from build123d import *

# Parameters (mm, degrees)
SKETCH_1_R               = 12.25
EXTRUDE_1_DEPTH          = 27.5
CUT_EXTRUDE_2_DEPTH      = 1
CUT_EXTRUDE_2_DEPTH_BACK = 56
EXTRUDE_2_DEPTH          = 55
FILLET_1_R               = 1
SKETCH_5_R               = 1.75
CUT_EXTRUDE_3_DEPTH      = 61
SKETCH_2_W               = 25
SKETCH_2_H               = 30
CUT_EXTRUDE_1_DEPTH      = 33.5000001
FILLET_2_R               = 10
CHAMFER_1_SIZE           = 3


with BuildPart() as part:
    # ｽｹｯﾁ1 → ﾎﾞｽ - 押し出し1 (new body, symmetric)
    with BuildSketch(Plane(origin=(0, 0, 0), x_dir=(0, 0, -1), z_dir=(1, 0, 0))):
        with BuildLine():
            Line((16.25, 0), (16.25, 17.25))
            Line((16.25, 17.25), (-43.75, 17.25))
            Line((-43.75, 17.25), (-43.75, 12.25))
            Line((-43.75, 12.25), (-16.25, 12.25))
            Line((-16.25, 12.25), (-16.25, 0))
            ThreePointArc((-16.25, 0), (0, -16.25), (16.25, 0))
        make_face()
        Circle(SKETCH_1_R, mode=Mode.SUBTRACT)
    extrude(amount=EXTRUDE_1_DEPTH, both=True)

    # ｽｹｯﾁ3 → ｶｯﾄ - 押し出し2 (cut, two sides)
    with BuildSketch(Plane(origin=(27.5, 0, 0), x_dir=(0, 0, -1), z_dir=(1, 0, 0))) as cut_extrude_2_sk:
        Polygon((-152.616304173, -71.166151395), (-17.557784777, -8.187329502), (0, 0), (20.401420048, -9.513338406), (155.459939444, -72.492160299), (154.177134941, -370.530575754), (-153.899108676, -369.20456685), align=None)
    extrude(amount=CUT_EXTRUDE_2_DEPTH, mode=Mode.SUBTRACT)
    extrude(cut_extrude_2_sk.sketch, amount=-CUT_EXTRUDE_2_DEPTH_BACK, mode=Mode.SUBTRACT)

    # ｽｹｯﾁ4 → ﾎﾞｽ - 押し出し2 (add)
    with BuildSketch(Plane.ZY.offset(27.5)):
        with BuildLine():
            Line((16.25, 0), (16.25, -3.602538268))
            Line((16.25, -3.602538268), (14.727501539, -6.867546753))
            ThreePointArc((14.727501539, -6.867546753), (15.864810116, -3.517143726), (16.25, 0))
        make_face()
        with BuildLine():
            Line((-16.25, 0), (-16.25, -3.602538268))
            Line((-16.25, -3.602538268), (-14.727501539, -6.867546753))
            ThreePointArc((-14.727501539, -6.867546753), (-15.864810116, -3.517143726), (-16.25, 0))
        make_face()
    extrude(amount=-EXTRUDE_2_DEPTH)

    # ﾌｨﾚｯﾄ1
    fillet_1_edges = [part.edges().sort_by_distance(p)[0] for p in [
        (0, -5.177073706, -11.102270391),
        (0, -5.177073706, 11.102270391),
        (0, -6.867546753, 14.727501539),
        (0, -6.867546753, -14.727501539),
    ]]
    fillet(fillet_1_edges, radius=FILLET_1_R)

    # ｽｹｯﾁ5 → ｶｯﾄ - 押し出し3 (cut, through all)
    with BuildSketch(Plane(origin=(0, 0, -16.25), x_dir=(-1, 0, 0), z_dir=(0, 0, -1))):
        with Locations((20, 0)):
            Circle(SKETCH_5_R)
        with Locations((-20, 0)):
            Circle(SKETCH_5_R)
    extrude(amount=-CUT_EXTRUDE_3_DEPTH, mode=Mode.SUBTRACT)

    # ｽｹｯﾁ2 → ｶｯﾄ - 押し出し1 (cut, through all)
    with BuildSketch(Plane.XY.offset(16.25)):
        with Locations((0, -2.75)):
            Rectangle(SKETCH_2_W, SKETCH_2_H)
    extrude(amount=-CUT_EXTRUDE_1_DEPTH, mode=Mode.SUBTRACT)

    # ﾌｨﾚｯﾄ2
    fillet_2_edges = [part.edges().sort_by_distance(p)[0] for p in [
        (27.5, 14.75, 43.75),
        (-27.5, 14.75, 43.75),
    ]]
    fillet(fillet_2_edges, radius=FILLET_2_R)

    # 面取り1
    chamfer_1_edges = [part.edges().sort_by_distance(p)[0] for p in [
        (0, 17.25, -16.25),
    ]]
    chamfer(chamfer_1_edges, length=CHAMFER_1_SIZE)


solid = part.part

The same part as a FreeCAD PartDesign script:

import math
import FreeCAD as App
import Part
import Sketcher
from FreeCAD import Vector
Q = App.Units.Quantity


def edges_at(feature, points):
    """Names of the edges that pass closest to the given points."""
    edges = feature.Shape.Edges
    near = lambda p: min(range(len(edges)), key=lambda i: edges[i].distToShape(Part.Vertex(*p))[0])
    return sorted({f"Edge{near(p) + 1}" for p in points})


def add_polygon(sketch, points):
    """Adds a closed chain of lines whose ends are joined by coincident constraints."""
    first, n = sketch.GeometryCount, len(points)
    for a, b in zip(points, points[1:] + points[:1]):
        sketch.addGeometry(Part.LineSegment(App.Vector(*a, 0), App.Vector(*b, 0)), False)
    for i in range(n):
        sketch.addConstraint(Sketcher.Constraint("Coincident", first + i, 2, first + (i + 1) % n, 1))

doc = App.newDocument("Part")
params = doc.addObject("Spreadsheet::Sheet", "Params")
for row, (alias, value) in enumerate([
    ("sketch1_diameter", "24.5 mm"),
    ("sketch1_width", "5 mm"),
    ("sketch1_height", "60 mm"),
    ("sketch1_radius", "16.25 mm"),
    ("sketch1_width2", "17.25 mm"),
    ("pad1_length", "55 mm"),
    ("sketch3_radius", "16.25 mm"),
    ("pad2_length", "55 mm"),
    ("fillet_radius", "1 mm"),
    ("sketch4_diameter", "3.5 mm"),
    ("sketch5_width", "25 mm"),
    ("sketch5_height", "30 mm"),
    ("fillet2_radius", "10 mm"),
    ("chamfer_size", "3 mm"),
], start=1):
    params.set(f"A{row}", alias)
    params.set(f"B{row}", "=" + value)
    params.setAlias(f"B{row}", alias)

body = doc.addObject("PartDesign::Body", "Body")

sketch1 = body.newObject("Sketcher::SketchObject", "Sketch")
sketch1.AttachmentSupport = (doc.getObject("YZ_Plane"), [""])
sketch1.MapMode = "FlatFace"
sketch1.addGeometry([
    Part.LineSegment(Vector(0, -16.25, 0), Vector(17.25, -16.25, 0)),
    Part.LineSegment(Vector(17.25, -16.25, 0), Vector(17.25, 43.75, 0)),
    Part.LineSegment(Vector(17.25, 43.75, 0), Vector(12.25, 43.75, 0)),
    Part.LineSegment(Vector(12.25, 43.75, 0), Vector(12.25, 16.25, 0)),
    Part.LineSegment(Vector(12.25, 16.25, 0), Vector(0, 16.25, 0)),
    Part.ArcOfCircle(Part.Circle(Vector(0, 0, 0), Vector(0, 0, 1), 16.25), math.radians(90), math.radians(270)),
    Part.Circle(Vector(0, 0, 0), Vector(0, 0, 1), 12.25),
], False)
sketch1.addConstraint([
    Sketcher.Constraint("Coincident", 0, 2, 1, 1),
    Sketcher.Constraint("Coincident", 1, 2, 2, 1),
    Sketcher.Constraint("Coincident", 2, 2, 3, 1),
    Sketcher.Constraint("Coincident", 3, 2, 4, 1),
    Sketcher.Constraint("Tangent", 4, 2, 5, 1),
    Sketcher.Constraint("Tangent", 5, 2, 0, 1),
    Sketcher.Constraint("Horizontal", 0),
    Sketcher.Constraint("Vertical", 1),
    Sketcher.Constraint("Horizontal", 2),
    Sketcher.Constraint("Vertical", 3),
    Sketcher.Constraint("Horizontal", 4),
    Sketcher.Constraint("Coincident", 5, 3, -1, 1),
    Sketcher.Constraint("Coincident", 6, 3, -1, 1),
    Sketcher.Constraint("Diameter", 6, Q("24.5 mm")),
    Sketcher.Constraint("DistanceX", 2, 2, 2, 1, Q("5 mm")),
    Sketcher.Constraint("DistanceY", 1, 1, 1, 2, Q("60 mm")),
    Sketcher.Constraint("Radius", 5, Q("16.25 mm")),
    Sketcher.Constraint("DistanceX", 0, 1, 0, 2, Q("17.25 mm")),
])
sketch1.setExpression("Constraints[13]", "Params.sketch1_diameter")
sketch1.setExpression("Constraints[14]", "Params.sketch1_width")
sketch1.setExpression("Constraints[15]", "Params.sketch1_height")
sketch1.setExpression("Constraints[16]", "Params.sketch1_radius")
sketch1.setExpression("Constraints[17]", "Params.sketch1_width2")
pad1 = body.newObject("PartDesign::Pad", "Pad")
pad1.Profile = sketch1
pad1.setExpression("Length", "Params.pad1_length")
pad1.Midplane = True

sketch2 = body.newObject("Sketcher::SketchObject", "Sketch001")
sketch2.AttachmentSupport = (doc.getObject("YZ_Plane"), [""])
sketch2.MapMode = "FlatFace"
sketch2.AttachmentOffset = App.Placement(Vector(0, 0, 27.5), App.Rotation())
add_polygon(sketch2, [(-8.18733, 17.557785), (-71.166151, 152.616304), (-369.204567, 153.899109), (-370.530576, -154.177135), (-72.49216, -155.459939), (-9.513338, -20.40142), (0, 0)])
sketch2.addConstraint([
    Sketcher.Constraint("Coincident", 5, 2, -1, 1),
    Sketcher.Constraint("Perpendicular", 1, 2),
    Sketcher.Constraint("Perpendicular", 2, 3),
    Sketcher.Constraint("Parallel", 4, 5),
    Sketcher.Constraint("Parallel", 0, 6),
    Sketcher.Constraint("Equal", 1, 3),
    Sketcher.Constraint("Equal", 0, 4),
    Sketcher.Constraint("Angle", 0, Q("115 deg")),
    Sketcher.Constraint("Angle", 4, Q("65 deg")),
    Sketcher.Constraint("Distance", 0, Q("149.020588 mm")),
    Sketcher.Constraint("DistanceX", 0, 2, -1, 1, Q("71.166151 mm")),
    Sketcher.Constraint("DistanceY", -1, 1, 1, 2, Q("153.899109 mm")),
    Sketcher.Constraint("DistanceX", 3, 2, -1, 1, Q("72.49216 mm")),
])
pocket1 = body.newObject("PartDesign::Pocket", "Pocket")
pocket1.Profile = sketch2
pocket1.Type = "ThroughAll"
pocket1.Midplane = True

sketch3 = body.newObject("Sketcher::SketchObject", "Sketch002")
sketch3.AttachmentSupport = (doc.getObject("YZ_Plane"), [""])
sketch3.MapMode = "FlatFace"
sketch3.AttachmentOffset = App.Placement(Vector(0, 0, -27.5), App.Rotation())
sketch3.addGeometry([
    Part.LineSegment(Vector(-3.602538, 16.25, 0), Vector(0, 16.25, 0)),
    Part.ArcOfCircle(Part.Circle(Vector(0, 0, 0), Vector(0, 0, 1), 16.25), math.radians(90), math.radians(115)),
    Part.LineSegment(Vector(-6.867547, 14.727502, 0), Vector(-3.602538, 16.25, 0)),
    Part.LineSegment(Vector(0, -16.25, 0), Vector(-3.602538, -16.25, 0)),
    Part.LineSegment(Vector(-3.602538, -16.25, 0), Vector(-6.867547, -14.727502, 0)),
    Part.ArcOfCircle(Part.Circle(Vector(0, 0, 0), Vector(0, 0, 1), 16.25), math.radians(-115), math.radians(-90)),
], False)
sketch3.addConstraint([
    Sketcher.Constraint("Tangent", 0, 2, 1, 1),
    Sketcher.Constraint("Tangent", 1, 2, 2, 1),
    Sketcher.Constraint("Coincident", 2, 2, 0, 1),
    Sketcher.Constraint("Coincident", 3, 2, 4, 1),
    Sketcher.Constraint("Tangent", 4, 2, 5, 1),
    Sketcher.Constraint("Tangent", 5, 2, 3, 1),
    Sketcher.Constraint("Horizontal", 0),
    Sketcher.Constraint("Horizontal", 3),
    Sketcher.Constraint("Coincident", 1, 3, -1, 1),
    Sketcher.Constraint("Coincident", 5, 3, -1, 1),
    Sketcher.Constraint("Equal", 1, 5),
    Sketcher.Constraint("Vertical", 2, 2, 3, 2),
    Sketcher.Constraint("Angle", 2, Q("25 deg")),
    Sketcher.Constraint("Radius", 1, Q("16.25 mm")),
])
sketch3.setExpression("Constraints[13]", "Params.sketch3_radius")
pad2 = body.newObject("PartDesign::Pad", "Pad001")
pad2.Profile = sketch3
pad2.setExpression("Length", "Params.pad2_length")
doc.recompute()

fillet = body.newObject("PartDesign::Fillet", "Fillet")
fillet.Base = (pad2, edges_at(pad2, [
    (0, -5.177, -11.102),
    (0, -5.177, 11.102),
    (0, -6.868, 14.728),
    (0, -6.868, -14.728),
]))
fillet.setExpression("Radius", "Params.fillet_radius")

sketch4 = body.newObject("Sketcher::SketchObject", "Sketch003")
sketch4.AttachmentSupport = (doc.getObject("XY_Plane"), [""])
sketch4.MapMode = "FlatFace"
sketch4.AttachmentOffset = App.Placement(Vector(0, 0, -16.25), App.Rotation())
sketch4.addGeometry([
    Part.Circle(Vector(-20, 0, 0), Vector(0, 0, 1), 1.75),
    Part.Circle(Vector(20, 0, 0), Vector(0, 0, 1), 1.75),
], False)
sketch4.addConstraint([
    Sketcher.Constraint("Equal", 0, 1),
    Sketcher.Constraint("Symmetric", 0, 3, 1, 3, -1, 1),
    Sketcher.Constraint("PointOnObject", 0, 3, -1),
    Sketcher.Constraint("Diameter", 0, Q("3.5 mm")),
    Sketcher.Constraint("DistanceX", 0, 3, -1, 1, Q("20 mm")),
])
sketch4.setExpression("Constraints[3]", "Params.sketch4_diameter")
pocket2 = body.newObject("PartDesign::Pocket", "Pocket001")
pocket2.Profile = sketch4
pocket2.Type = "ThroughAll"
pocket2.Reversed = True

sketch5 = body.newObject("Sketcher::SketchObject", "Sketch004")
sketch5.AttachmentSupport = (doc.getObject("XY_Plane"), [""])
sketch5.MapMode = "FlatFace"
sketch5.AttachmentOffset = App.Placement(Vector(0, 0, 16.25), App.Rotation())
add_polygon(sketch5, [(-12.5, 12.25), (-12.5, -17.75), (12.5, -17.75), (12.5, 12.25)])
sketch5.addConstraint([
    Sketcher.Constraint("Vertical", 0),
    Sketcher.Constraint("Horizontal", 1),
    Sketcher.Constraint("Vertical", 2),
    Sketcher.Constraint("Horizontal", 3),
    Sketcher.Constraint("DistanceX", 1, 1, 1, 2, Q("25 mm")),
    Sketcher.Constraint("DistanceY", 0, 2, 0, 1, Q("30 mm")),
    Sketcher.Constraint("DistanceX", 0, 2, -1, 1, Q("12.5 mm")),
    Sketcher.Constraint("DistanceY", 0, 2, -1, 1, Q("17.75 mm")),
])
sketch5.setExpression("Constraints[8]", "Params.sketch5_width")
sketch5.setExpression("Constraints[9]", "Params.sketch5_height")
pocket3 = body.newObject("PartDesign::Pocket", "Pocket002")
pocket3.Profile = sketch5
pocket3.Type = "ThroughAll"
doc.recompute()

fillet2 = body.newObject("PartDesign::Fillet", "Fillet001")
fillet2.Base = (pocket3, edges_at(pocket3, [(27.5, 14.75, 43.75), (-27.5, 14.75, 43.75)]))
fillet2.setExpression("Radius", "Params.fillet2_radius")
doc.recompute()

chamfer = body.newObject("PartDesign::Chamfer", "Chamfer")
chamfer.Base = (fillet2, edges_at(fillet2, [(0, 17.25, -16.25)]))
chamfer.setExpression("Size", "Params.chamfer_size")

doc.recompute()
